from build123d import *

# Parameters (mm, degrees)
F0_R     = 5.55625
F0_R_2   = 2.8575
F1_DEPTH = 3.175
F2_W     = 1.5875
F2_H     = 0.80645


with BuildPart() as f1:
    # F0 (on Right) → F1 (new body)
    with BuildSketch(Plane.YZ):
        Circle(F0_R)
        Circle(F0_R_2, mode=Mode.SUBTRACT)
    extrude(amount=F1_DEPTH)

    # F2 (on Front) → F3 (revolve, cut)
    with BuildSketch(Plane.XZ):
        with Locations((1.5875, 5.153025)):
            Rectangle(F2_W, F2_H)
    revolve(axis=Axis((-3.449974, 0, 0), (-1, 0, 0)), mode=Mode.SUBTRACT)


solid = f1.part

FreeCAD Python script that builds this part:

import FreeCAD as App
import Part
import Sketcher
Q = App.Units.Quantity

doc = App.newDocument("Part")
params = doc.addObject("Spreadsheet::Sheet", "Params")
for row, (alias, value) in enumerate([
    ("sketch1_diameter", "0.4375 in"),
    ("sketch1_diameter2", "0.225 in"),
    ("pad1_length", "0.125 in"),
    ("sketch2_width", "0.0625 in"),
    ("groove_angle", "360 deg"),
], start=1):
    params.set(f"A{row}", alias)
    params.set(f"B{row}", "=" + value)
    params.setAlias(f"B{row}", alias)

body = doc.addObject("PartDesign::Body", "Body")

# Sketch on YZ plane
sketch1 = body.newObject("Sketcher::SketchObject", "Sketch")
sketch1.AttachmentSupport = (doc.getObject("YZ_Plane"), [""])
sketch1.MapMode = "FlatFace"
sketch1.addGeometry([
    Part.Circle(App.Vector(0, 0, 0), App.Vector(0, 0, 1), 5.55625),
    Part.Circle(App.Vector(0, 0, 0), App.Vector(0, 0, 1), 2.8575),
], False)
sketch1.addConstraint([
    Sketcher.Constraint("Coincident", 0, 3, -1, 1),
    Sketcher.Constraint("Coincident", 1, 3, -1, 1),
    Sketcher.Constraint("Diameter", 0, Q("0.4375 in")),
    Sketcher.Constraint("Diameter", 1, Q("0.225 in")),
])
sketch1.setExpression("Constraints[2]", "Params.sketch1_diameter")
sketch1.setExpression("Constraints[3]", "Params.sketch1_diameter2")
pad1 = body.newObject("PartDesign::Pad", "Pad")
pad1.Profile = sketch1
pad1.setExpression("Length", "Params.pad1_length")

# Sketch on XZ plane
sketch2 = body.newObject("Sketcher::SketchObject", "Sketch001")
sketch2.AttachmentSupport = (doc.getObject("XZ_Plane"), [""])
sketch2.MapMode = "FlatFace"
sketch2.addGeometry([
    Part.LineSegment(App.Vector(0.79375, 5.55625, 0), App.Vector(0.79375, 4.7498, 0)),
    Part.LineSegment(App.Vector(0.79375, 4.7498, 0), App.Vector(2.38125, 4.7498, 0)),
    Part.LineSegment(App.Vector(2.38125, 4.7498, 0), App.Vector(2.38125, 5.55625, 0)),
    Part.LineSegment(App.Vector(2.38125, 5.55625, 0), App.Vector(0.79375, 5.55625, 0)),
], False)
sketch2.addConstraint([
    Sketcher.Constraint("Coincident", 0, 2, 1, 1),
    Sketcher.Constraint("Coincident", 1, 2, 2, 1),
    Sketcher.Constraint("Coincident", 2, 2, 3, 1),
    Sketcher.Constraint("Coincident", 3, 2, 0, 1),
    Sketcher.Constraint("Vertical", 0),
    Sketcher.Constraint("Horizontal", 1),
    Sketcher.Constraint("Vertical", 2),
    Sketcher.Constraint("Horizontal", 3),
    Sketcher.Constraint("DistanceX", 1, 1, 1, 2, Q("0.0625 in")),
    Sketcher.Constraint("DistanceX", -1, 1, 0, 2, Q("0.03125 in")),
    Sketcher.Constraint("DistanceY", -1, 1, 0, 2, Q("0.187 in")),
    Sketcher.Constraint("DistanceY", -1, 1, 2, 2, Q("0.21875 in")),
])
sketch2.setExpression("Constraints[8]", "Params.sketch2_width")
groove = body.newObject("PartDesign::Groove", "Groove")
groove.Profile = sketch2
groove.ReferenceAxis = (sketch2, ["H_Axis"])
groove.setExpression("Angle", "Params.groove_angle")

doc.recompute()
